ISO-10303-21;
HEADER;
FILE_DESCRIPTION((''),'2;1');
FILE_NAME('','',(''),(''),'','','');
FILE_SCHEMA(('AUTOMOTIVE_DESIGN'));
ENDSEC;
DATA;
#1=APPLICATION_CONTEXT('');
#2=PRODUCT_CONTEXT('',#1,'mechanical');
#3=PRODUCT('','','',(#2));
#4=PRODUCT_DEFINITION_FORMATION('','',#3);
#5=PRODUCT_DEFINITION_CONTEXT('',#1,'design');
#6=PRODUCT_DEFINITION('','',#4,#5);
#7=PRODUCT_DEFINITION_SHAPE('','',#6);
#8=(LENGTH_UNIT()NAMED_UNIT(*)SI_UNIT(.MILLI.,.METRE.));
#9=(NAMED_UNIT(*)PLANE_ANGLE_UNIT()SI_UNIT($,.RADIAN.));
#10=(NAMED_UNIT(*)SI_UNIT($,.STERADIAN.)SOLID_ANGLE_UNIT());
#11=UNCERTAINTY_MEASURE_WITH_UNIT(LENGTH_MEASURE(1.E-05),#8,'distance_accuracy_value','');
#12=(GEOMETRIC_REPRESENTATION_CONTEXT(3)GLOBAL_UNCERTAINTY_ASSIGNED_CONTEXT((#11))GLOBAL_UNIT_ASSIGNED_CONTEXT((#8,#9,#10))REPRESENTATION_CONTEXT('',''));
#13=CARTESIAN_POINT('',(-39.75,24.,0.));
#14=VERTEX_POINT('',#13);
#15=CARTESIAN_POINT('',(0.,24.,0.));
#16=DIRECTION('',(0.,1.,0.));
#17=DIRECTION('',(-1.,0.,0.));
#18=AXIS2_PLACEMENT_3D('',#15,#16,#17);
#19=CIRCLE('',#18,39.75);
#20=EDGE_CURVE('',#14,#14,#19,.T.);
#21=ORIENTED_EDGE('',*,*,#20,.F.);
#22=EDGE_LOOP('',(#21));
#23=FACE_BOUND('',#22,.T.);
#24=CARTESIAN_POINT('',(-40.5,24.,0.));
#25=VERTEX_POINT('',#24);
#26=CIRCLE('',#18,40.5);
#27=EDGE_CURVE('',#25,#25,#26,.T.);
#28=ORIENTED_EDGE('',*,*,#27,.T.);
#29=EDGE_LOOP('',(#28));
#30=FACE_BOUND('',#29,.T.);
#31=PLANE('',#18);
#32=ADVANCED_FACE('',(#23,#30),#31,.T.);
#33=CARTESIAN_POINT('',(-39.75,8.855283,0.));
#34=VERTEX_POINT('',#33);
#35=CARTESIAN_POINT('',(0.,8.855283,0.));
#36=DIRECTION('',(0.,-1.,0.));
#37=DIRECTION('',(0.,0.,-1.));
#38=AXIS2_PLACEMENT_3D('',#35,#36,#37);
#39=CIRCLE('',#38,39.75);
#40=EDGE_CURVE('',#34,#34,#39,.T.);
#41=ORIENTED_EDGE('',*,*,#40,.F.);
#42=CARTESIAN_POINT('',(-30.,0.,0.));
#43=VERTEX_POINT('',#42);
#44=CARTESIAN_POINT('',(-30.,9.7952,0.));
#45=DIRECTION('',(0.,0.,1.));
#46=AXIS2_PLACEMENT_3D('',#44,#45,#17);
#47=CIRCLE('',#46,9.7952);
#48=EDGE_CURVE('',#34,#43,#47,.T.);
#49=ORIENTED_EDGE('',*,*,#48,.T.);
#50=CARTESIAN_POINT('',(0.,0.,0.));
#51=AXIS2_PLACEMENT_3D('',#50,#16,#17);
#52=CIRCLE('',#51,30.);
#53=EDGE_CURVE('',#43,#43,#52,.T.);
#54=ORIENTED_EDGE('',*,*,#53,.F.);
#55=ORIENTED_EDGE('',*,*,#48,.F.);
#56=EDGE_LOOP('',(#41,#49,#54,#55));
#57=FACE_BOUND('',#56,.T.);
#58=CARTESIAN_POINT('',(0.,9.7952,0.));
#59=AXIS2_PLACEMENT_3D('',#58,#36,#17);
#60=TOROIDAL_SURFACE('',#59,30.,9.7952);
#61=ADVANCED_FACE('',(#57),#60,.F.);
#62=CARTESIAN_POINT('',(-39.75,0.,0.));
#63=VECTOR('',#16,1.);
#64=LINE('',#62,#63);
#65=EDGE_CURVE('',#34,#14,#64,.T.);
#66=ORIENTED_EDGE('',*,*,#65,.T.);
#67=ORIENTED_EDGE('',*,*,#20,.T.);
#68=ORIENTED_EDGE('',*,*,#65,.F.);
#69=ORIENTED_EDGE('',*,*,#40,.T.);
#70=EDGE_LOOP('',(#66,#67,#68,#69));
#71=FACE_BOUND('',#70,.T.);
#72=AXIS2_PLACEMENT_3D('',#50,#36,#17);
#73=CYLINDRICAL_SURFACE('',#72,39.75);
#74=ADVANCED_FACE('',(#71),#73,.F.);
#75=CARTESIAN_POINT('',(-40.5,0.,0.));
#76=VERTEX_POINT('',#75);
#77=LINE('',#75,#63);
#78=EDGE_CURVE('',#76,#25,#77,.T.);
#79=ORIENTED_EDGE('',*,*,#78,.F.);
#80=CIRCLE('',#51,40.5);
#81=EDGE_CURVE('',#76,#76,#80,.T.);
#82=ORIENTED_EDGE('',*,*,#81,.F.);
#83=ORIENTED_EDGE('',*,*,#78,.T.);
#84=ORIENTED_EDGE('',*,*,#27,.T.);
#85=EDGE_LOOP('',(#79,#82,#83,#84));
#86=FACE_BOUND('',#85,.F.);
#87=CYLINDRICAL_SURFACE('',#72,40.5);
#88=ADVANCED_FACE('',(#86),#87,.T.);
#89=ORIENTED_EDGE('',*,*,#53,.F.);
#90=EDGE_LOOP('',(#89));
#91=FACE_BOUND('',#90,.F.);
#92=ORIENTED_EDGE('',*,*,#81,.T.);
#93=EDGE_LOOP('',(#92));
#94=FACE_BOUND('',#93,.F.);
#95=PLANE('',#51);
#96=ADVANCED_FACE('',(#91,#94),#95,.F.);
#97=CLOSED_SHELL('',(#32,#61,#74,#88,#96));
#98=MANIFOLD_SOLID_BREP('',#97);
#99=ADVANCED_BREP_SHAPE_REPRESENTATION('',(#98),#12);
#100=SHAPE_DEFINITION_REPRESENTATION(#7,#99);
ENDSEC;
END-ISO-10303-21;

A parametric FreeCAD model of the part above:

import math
import FreeCAD as App
import Part
import Sketcher

V = App.Vector

doc = App.newDocument("Part")
body = doc.addObject("PartDesign::Body", "Body")

sketch1 = body.newObject("Sketcher::SketchObject", "Sketch")
sketch1.AttachmentSupport = (doc.getObject("XZ_Plane"), [""])
sketch1.MapMode = "FlatFace"
sketch1.addGeometry([
    Part.Circle(V(0, 0, 0), V(0, 0, 1), 40.5),
    Part.Circle(V(0, 0, 0), V(0, 0, 1), 39.75),
], False)
sketch1.addConstraint([
    Sketcher.Constraint("Coincident", 0, 3, -1, 1),
    Sketcher.Constraint("Coincident", 1, 3, -1, 1),
    Sketcher.Constraint("Diameter", 0, 81.0),
    Sketcher.Constraint("Diameter", 1, 79.5),
])
pad1 = body.newObject("PartDesign::Pad", "Pad")
pad1.Profile = sketch1
pad1.Length = 24
pad1.Reversed = True

sketch2 = body.newObject("Sketcher::SketchObject", "Sketch001")
sketch2.AttachmentSupport = (doc.getObject("XY_Plane"), [""])
sketch2.MapMode = "FlatFace"
sketch2.addGeometry([
    Part.LineSegment(V(-39.7678, 0, 0), V(-30, 0, 0)),
    Part.ArcOfCircle(Part.Circle(V(-30, 9.7952, 0), V(0, 0, 1), 9.7952), math.radians(-175.713453), math.radians(-90)),
    Part.LineSegment(V(-39.7678, 9.063062, 0), V(-39.7678, 0, 0)),
], False)
sketch2.addConstraint([
    Sketcher.Constraint("Tangent", 0, 2, 1, 2),
    Sketcher.Constraint("Coincident", 1, 1, 2, 1),
    Sketcher.Constraint("Coincident", 2, 2, 0, 1),
    Sketcher.Constraint("Horizontal", 0),
    Sketcher.Constraint("Vertical", 2),
    Sketcher.Constraint("PointOnObject", 0, 2, -1),
    Sketcher.Constraint("DistanceX", 1, 3, -1, 1, 30.0),
    Sketcher.Constraint("Radius", 1, 9.7952),
    Sketcher.Constraint("DistanceY", 2, 2, 2, 1, 9.063),
])
revolution = body.newObject("PartDesign::Revolution", "Revolution")
revolution.Profile = sketch2
revolution.ReferenceAxis = (sketch2, ["V_Axis"])
revolution.Angle = 360

doc.recompute()
